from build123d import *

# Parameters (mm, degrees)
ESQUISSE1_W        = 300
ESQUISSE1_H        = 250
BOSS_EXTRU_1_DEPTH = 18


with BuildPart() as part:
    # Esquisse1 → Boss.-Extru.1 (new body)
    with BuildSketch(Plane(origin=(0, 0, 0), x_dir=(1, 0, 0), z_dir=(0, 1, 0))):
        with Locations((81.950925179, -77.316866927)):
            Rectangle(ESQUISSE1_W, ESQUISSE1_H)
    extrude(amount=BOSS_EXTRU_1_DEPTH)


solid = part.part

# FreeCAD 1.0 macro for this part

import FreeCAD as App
import Part
import Sketcher
from FreeCAD import Vector

doc = App.newDocument("Part")
body = doc.addObject("PartDesign::Body", "Body")

sketch1 = body.newObject("Sketcher::SketchObject", "Sketch")
sketch1.AttachmentSupport = (doc.getObject("XZ_Plane"), [""])
sketch1.MapMode = "FlatFace"
sketch1.addGeometry([
    Part.LineSegment(Vector(-68, -48, 0), Vector(-68, 202, 0)),
    Part.LineSegment(Vector(-68, 202, 0), Vector(232, 202, 0)),
    Part.LineSegment(Vector(232, 202, 0), Vector(232, -48, 0)),
    Part.LineSegment(Vector(232, -48, 0), Vector(-68, -48, 0)),
], False)
sketch1.addConstraint([
    Sketcher.Constraint("Coincident", 0, 2, 1, 1),
    Sketcher.Constraint("Coincident", 1, 2, 2, 1),
    Sketcher.Constraint("Coincident", 2, 2, 3, 1),
    Sketcher.Constraint("Coincident", 3, 2, 0, 1),
    Sketcher.Constraint("Vertical", 0),
    Sketcher.Constraint("Horizontal", 1),
    Sketcher.Constraint("Vertical", 2),
    Sketcher.Constraint("Horizontal", 3),
    Sketcher.Constraint("DistanceX", 1, 1, 1, 2, 300.0),
    Sketcher.Constraint("DistanceY", 0, 1, 0, 2, 250.0),
    Sketcher.Constraint("DistanceX", 0, 2, -1, 1, 68.049075),
    Sketcher.Constraint("DistanceY", -1, 1, 0, 2, 202.316867),
])
pad1 = body.newObject("PartDesign::Pad", "Pad")
pad1.Profile = sketch1
pad1.Length = 18
pad1.Reversed = True

doc.recompute()
